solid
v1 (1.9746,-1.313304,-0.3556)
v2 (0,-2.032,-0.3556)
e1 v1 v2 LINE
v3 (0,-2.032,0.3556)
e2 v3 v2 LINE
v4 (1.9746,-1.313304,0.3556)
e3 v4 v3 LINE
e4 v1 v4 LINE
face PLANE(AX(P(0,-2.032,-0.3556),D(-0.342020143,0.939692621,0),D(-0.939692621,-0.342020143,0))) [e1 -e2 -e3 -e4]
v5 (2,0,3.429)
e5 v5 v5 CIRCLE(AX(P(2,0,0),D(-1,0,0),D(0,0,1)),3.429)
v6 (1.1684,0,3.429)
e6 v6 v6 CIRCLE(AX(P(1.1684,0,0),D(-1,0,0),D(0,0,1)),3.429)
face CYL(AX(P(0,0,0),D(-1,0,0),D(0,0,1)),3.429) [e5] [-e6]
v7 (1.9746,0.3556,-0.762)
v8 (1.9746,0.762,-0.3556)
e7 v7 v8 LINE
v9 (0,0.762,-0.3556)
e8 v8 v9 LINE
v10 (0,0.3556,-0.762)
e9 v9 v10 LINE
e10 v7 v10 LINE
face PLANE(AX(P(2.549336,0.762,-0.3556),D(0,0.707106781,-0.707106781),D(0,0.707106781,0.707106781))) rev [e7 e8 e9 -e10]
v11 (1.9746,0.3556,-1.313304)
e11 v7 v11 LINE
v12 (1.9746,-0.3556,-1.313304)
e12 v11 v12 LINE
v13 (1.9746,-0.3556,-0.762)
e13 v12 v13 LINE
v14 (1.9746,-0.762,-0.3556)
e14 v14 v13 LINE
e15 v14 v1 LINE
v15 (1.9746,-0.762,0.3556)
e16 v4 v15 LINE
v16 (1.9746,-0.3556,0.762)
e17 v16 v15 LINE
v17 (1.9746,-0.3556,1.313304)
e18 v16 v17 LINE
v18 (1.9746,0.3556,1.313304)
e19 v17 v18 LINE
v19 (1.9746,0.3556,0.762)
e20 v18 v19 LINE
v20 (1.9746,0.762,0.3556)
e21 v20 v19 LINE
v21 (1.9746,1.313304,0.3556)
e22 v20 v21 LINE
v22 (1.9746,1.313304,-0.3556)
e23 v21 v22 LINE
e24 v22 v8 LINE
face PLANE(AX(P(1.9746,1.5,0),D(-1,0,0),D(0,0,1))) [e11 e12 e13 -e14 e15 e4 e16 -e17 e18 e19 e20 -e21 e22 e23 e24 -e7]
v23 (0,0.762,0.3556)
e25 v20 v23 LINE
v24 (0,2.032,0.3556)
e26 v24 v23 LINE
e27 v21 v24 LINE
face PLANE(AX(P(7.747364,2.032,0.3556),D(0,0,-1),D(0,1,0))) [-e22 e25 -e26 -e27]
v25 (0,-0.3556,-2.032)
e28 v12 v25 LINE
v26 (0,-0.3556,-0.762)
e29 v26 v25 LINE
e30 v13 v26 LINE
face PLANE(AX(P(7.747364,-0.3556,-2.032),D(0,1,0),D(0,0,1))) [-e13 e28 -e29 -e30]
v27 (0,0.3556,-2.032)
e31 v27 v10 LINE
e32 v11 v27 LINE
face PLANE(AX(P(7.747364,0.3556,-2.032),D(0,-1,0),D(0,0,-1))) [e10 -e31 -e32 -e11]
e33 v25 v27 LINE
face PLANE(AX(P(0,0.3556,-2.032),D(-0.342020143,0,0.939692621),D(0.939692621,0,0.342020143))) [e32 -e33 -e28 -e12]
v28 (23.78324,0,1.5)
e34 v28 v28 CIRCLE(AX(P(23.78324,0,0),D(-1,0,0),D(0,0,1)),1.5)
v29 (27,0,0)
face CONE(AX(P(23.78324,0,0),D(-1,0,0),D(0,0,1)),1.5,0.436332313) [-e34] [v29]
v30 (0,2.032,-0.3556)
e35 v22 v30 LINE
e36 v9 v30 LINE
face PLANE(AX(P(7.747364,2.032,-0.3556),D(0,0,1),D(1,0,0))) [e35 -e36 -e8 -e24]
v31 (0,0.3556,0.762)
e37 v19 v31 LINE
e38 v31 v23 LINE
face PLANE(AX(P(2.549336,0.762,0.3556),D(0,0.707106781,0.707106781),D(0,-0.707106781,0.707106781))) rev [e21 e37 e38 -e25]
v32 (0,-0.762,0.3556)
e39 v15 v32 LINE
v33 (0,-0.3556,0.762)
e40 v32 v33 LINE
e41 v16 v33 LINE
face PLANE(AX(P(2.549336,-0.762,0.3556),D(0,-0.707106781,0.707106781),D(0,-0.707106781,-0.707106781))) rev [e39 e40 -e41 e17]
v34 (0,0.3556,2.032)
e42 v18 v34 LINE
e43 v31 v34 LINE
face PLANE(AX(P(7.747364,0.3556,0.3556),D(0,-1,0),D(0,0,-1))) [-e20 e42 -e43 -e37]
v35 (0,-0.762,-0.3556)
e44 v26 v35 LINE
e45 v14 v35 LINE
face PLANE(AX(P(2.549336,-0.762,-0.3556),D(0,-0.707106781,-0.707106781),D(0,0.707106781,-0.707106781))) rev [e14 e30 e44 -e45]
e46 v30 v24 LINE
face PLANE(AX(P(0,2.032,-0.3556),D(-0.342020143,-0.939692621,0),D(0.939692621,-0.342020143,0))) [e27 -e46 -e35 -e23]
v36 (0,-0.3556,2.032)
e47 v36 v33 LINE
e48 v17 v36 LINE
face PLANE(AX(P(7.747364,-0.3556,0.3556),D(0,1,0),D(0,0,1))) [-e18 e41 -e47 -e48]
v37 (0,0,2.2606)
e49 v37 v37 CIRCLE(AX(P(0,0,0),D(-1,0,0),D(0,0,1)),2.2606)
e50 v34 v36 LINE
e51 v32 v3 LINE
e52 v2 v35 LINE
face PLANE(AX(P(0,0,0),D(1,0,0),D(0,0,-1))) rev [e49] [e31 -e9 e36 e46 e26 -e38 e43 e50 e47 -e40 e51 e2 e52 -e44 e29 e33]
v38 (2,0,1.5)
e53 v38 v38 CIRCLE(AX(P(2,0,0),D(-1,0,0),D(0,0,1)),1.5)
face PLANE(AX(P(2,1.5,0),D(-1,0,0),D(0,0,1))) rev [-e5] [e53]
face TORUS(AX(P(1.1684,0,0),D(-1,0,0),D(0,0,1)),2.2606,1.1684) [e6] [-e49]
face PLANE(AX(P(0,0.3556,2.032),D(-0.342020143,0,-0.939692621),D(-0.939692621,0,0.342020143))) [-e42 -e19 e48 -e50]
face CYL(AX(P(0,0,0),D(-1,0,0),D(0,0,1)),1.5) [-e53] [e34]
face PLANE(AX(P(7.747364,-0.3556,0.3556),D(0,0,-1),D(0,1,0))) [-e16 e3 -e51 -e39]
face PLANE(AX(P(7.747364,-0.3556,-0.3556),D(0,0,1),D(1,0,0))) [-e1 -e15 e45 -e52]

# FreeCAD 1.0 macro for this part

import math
import FreeCAD as App
import Part
import Sketcher

V = App.Vector
Q = App.Units.Quantity


def faces_at(feature, points):
    """Names of the faces that lie closest to the given points."""
    faces = feature.Shape.Faces
    near = lambda p: min(range(len(faces)), key=lambda i: faces[i].distToShape(Part.Vertex(*p))[0])
    return sorted({f"Face{near(p) + 1}" for p in points})

doc = App.newDocument("Part")
body = doc.addObject("PartDesign::Body", "Body")

# Sketch on XY plane
sketch1 = body.newObject("Sketcher::SketchObject", "Sketch")
sketch1.AttachmentSupport = (doc.getObject("XY_Plane"), [""])
sketch1.MapMode = "FlatFace"
sketch1.addGeometry(Part.LineSegment(V(0, 2.3, 0), V(0, 0, 0)), False)
sketch1.addGeometry(Part.LineSegment(V(0, 0, 0), V(27, 0, 0)), False)
sketch1.addGeometry(Part.LineSegment(V(27, 0, 0), V(27, 1.5, 0)), False)
sketch1.addGeometry(Part.LineSegment(V(27, 1.5, 0), V(2, 1.5, 0)), False)
sketch1.addGeometry(Part.LineSegment(V(2, 1.5, 0), V(2, 3.4, 0)), False)
sketch1.addGeometry(Part.LineSegment(V(2, 3.4, 0), V(1.2, 3.4, 0)), False)
sketch1.addGeometry(Part.ArcOfCircle(Part.Circle(V(1.2, 2.3, 0), V(0, 0, 1), 1.2), math.radians(90), math.radians(180)), False)
sketch1.addConstraint(Sketcher.Constraint("Coincident", 0, 2, 1, 1))
sketch1.addConstraint(Sketcher.Constraint("Coincident", 1, 2, 2, 1))
sketch1.addConstraint(Sketcher.Constraint("Coincident", 2, 2, 3, 1))
sketch1.addConstraint(Sketcher.Constraint("Coincident", 3, 2, 4, 1))
sketch1.addConstraint(Sketcher.Constraint("Coincident", 4, 2, 5, 1))
sketch1.addConstraint(Sketcher.Constraint("Tangent", 5, 2, 6, 1))
sketch1.addConstraint(Sketcher.Constraint("Tangent", 6, 2, 0, 1))
sketch1.addConstraint(Sketcher.Constraint("Vertical", 0))
sketch1.addConstraint(Sketcher.Constraint("Horizontal", 1))
sketch1.addConstraint(Sketcher.Constraint("Vertical", 2))
sketch1.addConstraint(Sketcher.Constraint("Horizontal", 3))
sketch1.addConstraint(Sketcher.Constraint("Vertical", 4))
sketch1.addConstraint(Sketcher.Constraint("Horizontal", 5))
sketch1.addConstraint(Sketcher.Constraint("Coincident", 0, 2, -1, 1))
sketch1.addConstraint(Sketcher.Constraint("Radius", 6, Q("0.046 in")))
sketch1.addConstraint(Sketcher.Constraint("DistanceY", 0, 2, 0, 1, Q("0.089 in")))
sketch1.addConstraint(Sketcher.Constraint("DistanceX", 1, 1, 1, 2, Q("27 mm")))
sketch1.addConstraint(Sketcher.Constraint("DistanceX", 3, 2, 3, 1, Q("25 mm")))
sketch1.addConstraint(Sketcher.Constraint("DistanceY", 2, 1, 2, 2, Q("1.5 mm")))
revolution = body.newObject("PartDesign::Revolution", "Revolution")
revolution.Profile = sketch1
revolution.ReferenceAxis = (sketch1, ["H_Axis"])
revolution.Angle = 360

# Sketch on YZ plane
sketch2 = body.newObject("Sketcher::SketchObject", "Sketch001")
sketch2.AttachmentSupport = (doc.getObject("YZ_Plane"), [""])
sketch2.MapMode = "FlatFace"
sketch2.addGeometry(Part.LineSegment(V(2, -0.4, 0), V(2, 0.4, 0)), False)
sketch2.addGeometry(Part.LineSegment(V(2, 0.4, 0), V(0.4, 0.4, 0)), False)
sketch2.addGeometry(Part.LineSegment(V(0.4, 0.4, 0), V(0.4, 2, 0)), False)
sketch2.addGeometry(Part.LineSegment(V(0.4, 2, 0), V(-0.4, 2, 0)), False)
sketch2.addGeometry(Part.LineSegment(V(-0.4, 2, 0), V(-0.4, 0.4, 0)), False)
sketch2.addGeometry(Part.LineSegment(V(-0.4, 0.4, 0), V(-2, 0.4, 0)), False)
sketch2.addGeometry(Part.LineSegment(V(-2, 0.4, 0), V(-2, -0.4, 0)), False)
sketch2.addGeometry(Part.LineSegment(V(-2, -0.4, 0), V(-0.4, -0.4, 0)), False)
sketch2.addGeometry(Part.LineSegment(V(-0.4, -0.4, 0), V(-0.4, -2, 0)), False)
sketch2.addGeometry(Part.LineSegment(V(-0.4, -2, 0), V(0.4, -2, 0)), False)
sketch2.addGeometry(Part.LineSegment(V(0.4, -2, 0), V(0.4, -0.4, 0)), False)
sketch2.addGeometry(Part.LineSegment(V(0.4, -0.4, 0), V(2, -0.4, 0)), False)
sketch2.addConstraint(Sketcher.Constraint("Coincident", 0, 2, 1, 1))
sketch2.addConstraint(Sketcher.Constraint("Coincident", 1, 2, 2, 1))
sketch2.addConstraint(Sketcher.Constraint("Coincident", 2, 2, 3, 1))
sketch2.addConstraint(Sketcher.Constraint("Coincident", 3, 2, 4, 1))
sketch2.addConstraint(Sketcher.Constraint("Coincident", 4, 2, 5, 1))
sketch2.addConstraint(Sketcher.Constraint("Coincident", 5, 2, 6, 1))
sketch2.addConstraint(Sketcher.Constraint("Coincident", 6, 2, 7, 1))
sketch2.addConstraint(Sketcher.Constraint("Coincident", 7, 2, 8, 1))
sketch2.addConstraint(Sketcher.Constraint("Coincident", 8, 2, 9, 1))
sketch2.addConstraint(Sketcher.Constraint("Coincident", 9, 2, 10, 1))
sketch2.addConstraint(Sketcher.Constraint("Coincident", 10, 2, 11, 1))
sketch2.addConstraint(Sketcher.Constraint("Coincident", 11, 2, 0, 1))
sketch2.addConstraint(Sketcher.Constraint("Vertical", 0))
sketch2.addConstraint(Sketcher.Constraint("Horizontal", 1))
sketch2.addConstraint(Sketcher.Constraint("Vertical", 2))
sketch2.addConstraint(Sketcher.Constraint("Horizontal", 3))
sketch2.addConstraint(Sketcher.Constraint("Vertical", 4))
sketch2.addConstraint(Sketcher.Constraint("Horizontal", 5))
sketch2.addConstraint(Sketcher.Constraint("Vertical", 6))
sketch2.addConstraint(Sketcher.Constraint("Horizontal", 7))
sketch2.addConstraint(Sketcher.Constraint("Vertical", 8))
sketch2.addConstraint(Sketcher.Constraint("Horizontal", 9))
sketch2.addConstraint(Sketcher.Constraint("Vertical", 10))
sketch2.addConstraint(Sketcher.Constraint("Horizontal", 11))
sketch2.addConstraint(Sketcher.Constraint("Symmetric", 0, 2, 6, 2, -1, 1))
sketch2.addConstraint(Sketcher.Constraint("Symmetric", 2, 2, 8, 2, -1, 1))
sketch2.addConstraint(Sketcher.Constraint("Symmetric", 4, 2, 10, 2, -1, 1))
sketch2.addConstraint(Sketcher.Constraint("Symmetric", 1, 2, 4, 2, -2))
sketch2.addConstraint(Sketcher.Constraint("Equal", 9, 0))
sketch2.addConstraint(Sketcher.Constraint("Equal", 11, 2))
sketch2.addConstraint(Sketcher.Constraint("DistanceX", 1, 2, 1, 1, Q("0.066 in")))
sketch2.addConstraint(Sketcher.Constraint("DistanceX", 3, 2, 3, 1, Q("0.028 in")))
pocket1 = body.newObject("PartDesign::Pocket", "Pocket")
pocket1.Profile = sketch2
pocket1.Length = 1.9746
pocket1.Reversed = True
doc.recompute()

draft = body.newObject("PartDesign::Draft", "Draft")
draft.Base = (pocket1, faces_at(pocket1, [
    (0.987, 0, -2.032),
    (0.987, -2.032, 0),
    (0.987, 0, 2.032),
    (0.987, 2.032, 0),
]))
draft.NeutralPlane = (doc.getObject("YZ_Plane"), [""])
draft.Angle = 20
draft.Reversed = True

# Sketch on YZ plane
sketch3 = body.newObject("Sketcher::SketchObject", "Sketch002")
sketch3.AttachmentSupport = (doc.getObject("YZ_Plane"), [""])
sketch3.MapMode = "FlatFace"
sketch3.addGeometry(Part.LineSegment(V(0.36, 0.76, 0), V(0.76, 0.36, 0)), False)
sketch3.addGeometry(Part.LineSegment(V(0.76, 0.36, 0), V(0.36, 0.36, 0)), False)
sketch3.addGeometry(Part.LineSegment(V(0.36, 0.36, 0), V(0.36, 0.76, 0)), False)
sketch3.addGeometry(Part.LineSegment(V(0.36, -0.76, 0), V(0.36, -0.36, 0)), False)
sketch3.addGeometry(Part.LineSegment(V(0.36, -0.36, 0), V(0.76, -0.36, 0)), False)
sketch3.addGeometry(Part.LineSegment(V(0.76, -0.36, 0), V(0.36, -0.76, 0)), False)
sketch3.addGeometry(Part.LineSegment(V(-0.36, -0.76, 0), V(-0.76, -0.36, 0)), False)
sketch3.addGeometry(Part.LineSegment(V(-0.76, -0.36, 0), V(-0.36, -0.36, 0)), False)
sketch3.addGeometry(Part.LineSegment(V(-0.36, -0.36, 0), V(-0.36, -0.76, 0)), False)
sketch3.addGeometry(Part.LineSegment(V(-0.36, 0.76, 0), V(-0.36, 0.36, 0)), False)
sketch3.addGeometry(Part.LineSegment(V(-0.36, 0.36, 0), V(-0.76, 0.36, 0)), False)
sketch3.addGeometry(Part.LineSegment(V(-0.76, 0.36, 0), V(-0.36, 0.76, 0)), False)
sketch3.addConstraint(Sketcher.Constraint("Coincident", 0, 2, 1, 1))
sketch3.addConstraint(Sketcher.Constraint("Coincident", 1, 2, 2, 1))
sketch3.addConstraint(Sketcher.Constraint("Coincident", 2, 2, 0, 1))
sketch3.addConstraint(Sketcher.Constraint("Coincident", 3, 2, 4, 1))
sketch3.addConstraint(Sketcher.Constraint("Coincident", 4, 2, 5, 1))
sketch3.addConstraint(Sketcher.Constraint("Coincident", 5, 2, 3, 1))
sketch3.addConstraint(Sketcher.Constraint("Coincident", 6, 2, 7, 1))
sketch3.addConstraint(Sketcher.Constraint("Coincident", 7, 2, 8, 1))
sketch3.addConstraint(Sketcher.Constraint("Coincident", 8, 2, 6, 1))
sketch3.addConstraint(Sketcher.Constraint("Coincident", 9, 2, 10, 1))
sketch3.addConstraint(Sketcher.Constraint("Coincident", 10, 2, 11, 1))
sketch3.addConstraint(Sketcher.Constraint("Coincident", 11, 2, 9, 1))
sketch3.addConstraint(Sketcher.Constraint("Horizontal", 1))
sketch3.addConstraint(Sketcher.Constraint("Vertical", 2))
sketch3.addConstraint(Sketcher.Constraint("Vertical", 3))
sketch3.addConstraint(Sketcher.Constraint("Horizontal", 4))
sketch3.addConstraint(Sketcher.Constraint("Horizontal", 7))
sketch3.addConstraint(Sketcher.Constraint("Vertical", 8))
sketch3.addConstraint(Sketcher.Constraint("Vertical", 9))
sketch3.addConstraint(Sketcher.Constraint("Horizontal", 10))
sketch3.addConstraint(Sketcher.Constraint("Symmetric", 0, 2, 6, 2, -1, 1))
sketch3.addConstraint(Sketcher.Constraint("Symmetric", 2, 2, 8, 2, -1, 1))
sketch3.addConstraint(Sketcher.Constraint("Symmetric", 3, 2, 9, 2, -1, 1))
sketch3.addConstraint(Sketcher.Constraint("Symmetric", 4, 2, 6, 2, -2))
sketch3.addConstraint(Sketcher.Constraint("Symmetric", 5, 2, 8, 2, -2))
sketch3.addConstraint(Sketcher.Constraint("Perpendicular", 0, 5))
sketch3.addConstraint(Sketcher.Constraint("Perpendicular", 6, 11))
sketch3.addConstraint(Sketcher.Constraint("Horizontal", 2, 2, 11, 2))
sketch3.addConstraint(Sketcher.Constraint("DistanceX", 1, 2, 1, 1, Q("0.016 in")))
sketch3.addConstraint(Sketcher.Constraint("DistanceX", -1, 1, 0, 2, Q("0.03 in")))
sketch3.addConstraint(Sketcher.Constraint("DistanceY", -1, 1, 2, 2, Q("0.03 in")))
pocket2 = body.newObject("PartDesign::Pocket", "Pocket001")
pocket2.Profile = sketch3
pocket2.Length = 1.9746
pocket2.Reversed = True

# Sketch on XY plane
sketch4 = body.newObject("Sketcher::SketchObject", "Sketch003")
sketch4.AttachmentSupport = (doc.getObject("XY_Plane"), [""])
sketch4.MapMode = "FlatFace"
sketch4.addGeometry(Part.LineSegment(V(23.78, 1.5, 0), V(27, 0, 0)), False)
sketch4.addGeometry(Part.LineSegment(V(27, 0, 0), V(27.18, 0, 0)), False)
sketch4.addGeometry(Part.LineSegment(V(27.18, 0, 0), V(27.18, 1.5, 0)), False)
sketch4.addGeometry(Part.LineSegment(V(27.18, 1.5, 0), V(23.78, 1.5, 0)), False)
sketch4.addConstraint(Sketcher.Constraint("Coincident", 0, 2, 1, 1))
sketch4.addConstraint(Sketcher.Constraint("Coincident", 1, 2, 2, 1))
sketch4.addConstraint(Sketcher.Constraint("Coincident", 2, 2, 3, 1))
sketch4.addConstraint(Sketcher.Constraint("Coincident", 3, 2, 0, 1))
sketch4.addConstraint(Sketcher.Constraint("Horizontal", 1))
sketch4.addConstraint(Sketcher.Constraint("Vertical", 2))
sketch4.addConstraint(Sketcher.Constraint("Horizontal", 3))
sketch4.addConstraint(Sketcher.Constraint("PointOnObject", 0, 2, -1))
sketch4.addConstraint(Sketcher.Constraint("Angle", 0, Q("-25 deg")))
sketch4.addConstraint(Sketcher.Constraint("DistanceY", 2, 1, 2, 2, Q("1.5 mm")))
sketch4.addConstraint(Sketcher.Constraint("DistanceX", -1, 1, 0, 2, Q("27 mm")))
sketch4.addConstraint(Sketcher.Constraint("DistanceX", 1, 1, 1, 2, Q("0.184454 mm")))
groove = body.newObject("PartDesign::Groove", "Groove")
groove.Profile = sketch4
groove.ReferenceAxis = (sketch4, ["H_Axis"])
groove.Angle = 360

doc.recompute()
